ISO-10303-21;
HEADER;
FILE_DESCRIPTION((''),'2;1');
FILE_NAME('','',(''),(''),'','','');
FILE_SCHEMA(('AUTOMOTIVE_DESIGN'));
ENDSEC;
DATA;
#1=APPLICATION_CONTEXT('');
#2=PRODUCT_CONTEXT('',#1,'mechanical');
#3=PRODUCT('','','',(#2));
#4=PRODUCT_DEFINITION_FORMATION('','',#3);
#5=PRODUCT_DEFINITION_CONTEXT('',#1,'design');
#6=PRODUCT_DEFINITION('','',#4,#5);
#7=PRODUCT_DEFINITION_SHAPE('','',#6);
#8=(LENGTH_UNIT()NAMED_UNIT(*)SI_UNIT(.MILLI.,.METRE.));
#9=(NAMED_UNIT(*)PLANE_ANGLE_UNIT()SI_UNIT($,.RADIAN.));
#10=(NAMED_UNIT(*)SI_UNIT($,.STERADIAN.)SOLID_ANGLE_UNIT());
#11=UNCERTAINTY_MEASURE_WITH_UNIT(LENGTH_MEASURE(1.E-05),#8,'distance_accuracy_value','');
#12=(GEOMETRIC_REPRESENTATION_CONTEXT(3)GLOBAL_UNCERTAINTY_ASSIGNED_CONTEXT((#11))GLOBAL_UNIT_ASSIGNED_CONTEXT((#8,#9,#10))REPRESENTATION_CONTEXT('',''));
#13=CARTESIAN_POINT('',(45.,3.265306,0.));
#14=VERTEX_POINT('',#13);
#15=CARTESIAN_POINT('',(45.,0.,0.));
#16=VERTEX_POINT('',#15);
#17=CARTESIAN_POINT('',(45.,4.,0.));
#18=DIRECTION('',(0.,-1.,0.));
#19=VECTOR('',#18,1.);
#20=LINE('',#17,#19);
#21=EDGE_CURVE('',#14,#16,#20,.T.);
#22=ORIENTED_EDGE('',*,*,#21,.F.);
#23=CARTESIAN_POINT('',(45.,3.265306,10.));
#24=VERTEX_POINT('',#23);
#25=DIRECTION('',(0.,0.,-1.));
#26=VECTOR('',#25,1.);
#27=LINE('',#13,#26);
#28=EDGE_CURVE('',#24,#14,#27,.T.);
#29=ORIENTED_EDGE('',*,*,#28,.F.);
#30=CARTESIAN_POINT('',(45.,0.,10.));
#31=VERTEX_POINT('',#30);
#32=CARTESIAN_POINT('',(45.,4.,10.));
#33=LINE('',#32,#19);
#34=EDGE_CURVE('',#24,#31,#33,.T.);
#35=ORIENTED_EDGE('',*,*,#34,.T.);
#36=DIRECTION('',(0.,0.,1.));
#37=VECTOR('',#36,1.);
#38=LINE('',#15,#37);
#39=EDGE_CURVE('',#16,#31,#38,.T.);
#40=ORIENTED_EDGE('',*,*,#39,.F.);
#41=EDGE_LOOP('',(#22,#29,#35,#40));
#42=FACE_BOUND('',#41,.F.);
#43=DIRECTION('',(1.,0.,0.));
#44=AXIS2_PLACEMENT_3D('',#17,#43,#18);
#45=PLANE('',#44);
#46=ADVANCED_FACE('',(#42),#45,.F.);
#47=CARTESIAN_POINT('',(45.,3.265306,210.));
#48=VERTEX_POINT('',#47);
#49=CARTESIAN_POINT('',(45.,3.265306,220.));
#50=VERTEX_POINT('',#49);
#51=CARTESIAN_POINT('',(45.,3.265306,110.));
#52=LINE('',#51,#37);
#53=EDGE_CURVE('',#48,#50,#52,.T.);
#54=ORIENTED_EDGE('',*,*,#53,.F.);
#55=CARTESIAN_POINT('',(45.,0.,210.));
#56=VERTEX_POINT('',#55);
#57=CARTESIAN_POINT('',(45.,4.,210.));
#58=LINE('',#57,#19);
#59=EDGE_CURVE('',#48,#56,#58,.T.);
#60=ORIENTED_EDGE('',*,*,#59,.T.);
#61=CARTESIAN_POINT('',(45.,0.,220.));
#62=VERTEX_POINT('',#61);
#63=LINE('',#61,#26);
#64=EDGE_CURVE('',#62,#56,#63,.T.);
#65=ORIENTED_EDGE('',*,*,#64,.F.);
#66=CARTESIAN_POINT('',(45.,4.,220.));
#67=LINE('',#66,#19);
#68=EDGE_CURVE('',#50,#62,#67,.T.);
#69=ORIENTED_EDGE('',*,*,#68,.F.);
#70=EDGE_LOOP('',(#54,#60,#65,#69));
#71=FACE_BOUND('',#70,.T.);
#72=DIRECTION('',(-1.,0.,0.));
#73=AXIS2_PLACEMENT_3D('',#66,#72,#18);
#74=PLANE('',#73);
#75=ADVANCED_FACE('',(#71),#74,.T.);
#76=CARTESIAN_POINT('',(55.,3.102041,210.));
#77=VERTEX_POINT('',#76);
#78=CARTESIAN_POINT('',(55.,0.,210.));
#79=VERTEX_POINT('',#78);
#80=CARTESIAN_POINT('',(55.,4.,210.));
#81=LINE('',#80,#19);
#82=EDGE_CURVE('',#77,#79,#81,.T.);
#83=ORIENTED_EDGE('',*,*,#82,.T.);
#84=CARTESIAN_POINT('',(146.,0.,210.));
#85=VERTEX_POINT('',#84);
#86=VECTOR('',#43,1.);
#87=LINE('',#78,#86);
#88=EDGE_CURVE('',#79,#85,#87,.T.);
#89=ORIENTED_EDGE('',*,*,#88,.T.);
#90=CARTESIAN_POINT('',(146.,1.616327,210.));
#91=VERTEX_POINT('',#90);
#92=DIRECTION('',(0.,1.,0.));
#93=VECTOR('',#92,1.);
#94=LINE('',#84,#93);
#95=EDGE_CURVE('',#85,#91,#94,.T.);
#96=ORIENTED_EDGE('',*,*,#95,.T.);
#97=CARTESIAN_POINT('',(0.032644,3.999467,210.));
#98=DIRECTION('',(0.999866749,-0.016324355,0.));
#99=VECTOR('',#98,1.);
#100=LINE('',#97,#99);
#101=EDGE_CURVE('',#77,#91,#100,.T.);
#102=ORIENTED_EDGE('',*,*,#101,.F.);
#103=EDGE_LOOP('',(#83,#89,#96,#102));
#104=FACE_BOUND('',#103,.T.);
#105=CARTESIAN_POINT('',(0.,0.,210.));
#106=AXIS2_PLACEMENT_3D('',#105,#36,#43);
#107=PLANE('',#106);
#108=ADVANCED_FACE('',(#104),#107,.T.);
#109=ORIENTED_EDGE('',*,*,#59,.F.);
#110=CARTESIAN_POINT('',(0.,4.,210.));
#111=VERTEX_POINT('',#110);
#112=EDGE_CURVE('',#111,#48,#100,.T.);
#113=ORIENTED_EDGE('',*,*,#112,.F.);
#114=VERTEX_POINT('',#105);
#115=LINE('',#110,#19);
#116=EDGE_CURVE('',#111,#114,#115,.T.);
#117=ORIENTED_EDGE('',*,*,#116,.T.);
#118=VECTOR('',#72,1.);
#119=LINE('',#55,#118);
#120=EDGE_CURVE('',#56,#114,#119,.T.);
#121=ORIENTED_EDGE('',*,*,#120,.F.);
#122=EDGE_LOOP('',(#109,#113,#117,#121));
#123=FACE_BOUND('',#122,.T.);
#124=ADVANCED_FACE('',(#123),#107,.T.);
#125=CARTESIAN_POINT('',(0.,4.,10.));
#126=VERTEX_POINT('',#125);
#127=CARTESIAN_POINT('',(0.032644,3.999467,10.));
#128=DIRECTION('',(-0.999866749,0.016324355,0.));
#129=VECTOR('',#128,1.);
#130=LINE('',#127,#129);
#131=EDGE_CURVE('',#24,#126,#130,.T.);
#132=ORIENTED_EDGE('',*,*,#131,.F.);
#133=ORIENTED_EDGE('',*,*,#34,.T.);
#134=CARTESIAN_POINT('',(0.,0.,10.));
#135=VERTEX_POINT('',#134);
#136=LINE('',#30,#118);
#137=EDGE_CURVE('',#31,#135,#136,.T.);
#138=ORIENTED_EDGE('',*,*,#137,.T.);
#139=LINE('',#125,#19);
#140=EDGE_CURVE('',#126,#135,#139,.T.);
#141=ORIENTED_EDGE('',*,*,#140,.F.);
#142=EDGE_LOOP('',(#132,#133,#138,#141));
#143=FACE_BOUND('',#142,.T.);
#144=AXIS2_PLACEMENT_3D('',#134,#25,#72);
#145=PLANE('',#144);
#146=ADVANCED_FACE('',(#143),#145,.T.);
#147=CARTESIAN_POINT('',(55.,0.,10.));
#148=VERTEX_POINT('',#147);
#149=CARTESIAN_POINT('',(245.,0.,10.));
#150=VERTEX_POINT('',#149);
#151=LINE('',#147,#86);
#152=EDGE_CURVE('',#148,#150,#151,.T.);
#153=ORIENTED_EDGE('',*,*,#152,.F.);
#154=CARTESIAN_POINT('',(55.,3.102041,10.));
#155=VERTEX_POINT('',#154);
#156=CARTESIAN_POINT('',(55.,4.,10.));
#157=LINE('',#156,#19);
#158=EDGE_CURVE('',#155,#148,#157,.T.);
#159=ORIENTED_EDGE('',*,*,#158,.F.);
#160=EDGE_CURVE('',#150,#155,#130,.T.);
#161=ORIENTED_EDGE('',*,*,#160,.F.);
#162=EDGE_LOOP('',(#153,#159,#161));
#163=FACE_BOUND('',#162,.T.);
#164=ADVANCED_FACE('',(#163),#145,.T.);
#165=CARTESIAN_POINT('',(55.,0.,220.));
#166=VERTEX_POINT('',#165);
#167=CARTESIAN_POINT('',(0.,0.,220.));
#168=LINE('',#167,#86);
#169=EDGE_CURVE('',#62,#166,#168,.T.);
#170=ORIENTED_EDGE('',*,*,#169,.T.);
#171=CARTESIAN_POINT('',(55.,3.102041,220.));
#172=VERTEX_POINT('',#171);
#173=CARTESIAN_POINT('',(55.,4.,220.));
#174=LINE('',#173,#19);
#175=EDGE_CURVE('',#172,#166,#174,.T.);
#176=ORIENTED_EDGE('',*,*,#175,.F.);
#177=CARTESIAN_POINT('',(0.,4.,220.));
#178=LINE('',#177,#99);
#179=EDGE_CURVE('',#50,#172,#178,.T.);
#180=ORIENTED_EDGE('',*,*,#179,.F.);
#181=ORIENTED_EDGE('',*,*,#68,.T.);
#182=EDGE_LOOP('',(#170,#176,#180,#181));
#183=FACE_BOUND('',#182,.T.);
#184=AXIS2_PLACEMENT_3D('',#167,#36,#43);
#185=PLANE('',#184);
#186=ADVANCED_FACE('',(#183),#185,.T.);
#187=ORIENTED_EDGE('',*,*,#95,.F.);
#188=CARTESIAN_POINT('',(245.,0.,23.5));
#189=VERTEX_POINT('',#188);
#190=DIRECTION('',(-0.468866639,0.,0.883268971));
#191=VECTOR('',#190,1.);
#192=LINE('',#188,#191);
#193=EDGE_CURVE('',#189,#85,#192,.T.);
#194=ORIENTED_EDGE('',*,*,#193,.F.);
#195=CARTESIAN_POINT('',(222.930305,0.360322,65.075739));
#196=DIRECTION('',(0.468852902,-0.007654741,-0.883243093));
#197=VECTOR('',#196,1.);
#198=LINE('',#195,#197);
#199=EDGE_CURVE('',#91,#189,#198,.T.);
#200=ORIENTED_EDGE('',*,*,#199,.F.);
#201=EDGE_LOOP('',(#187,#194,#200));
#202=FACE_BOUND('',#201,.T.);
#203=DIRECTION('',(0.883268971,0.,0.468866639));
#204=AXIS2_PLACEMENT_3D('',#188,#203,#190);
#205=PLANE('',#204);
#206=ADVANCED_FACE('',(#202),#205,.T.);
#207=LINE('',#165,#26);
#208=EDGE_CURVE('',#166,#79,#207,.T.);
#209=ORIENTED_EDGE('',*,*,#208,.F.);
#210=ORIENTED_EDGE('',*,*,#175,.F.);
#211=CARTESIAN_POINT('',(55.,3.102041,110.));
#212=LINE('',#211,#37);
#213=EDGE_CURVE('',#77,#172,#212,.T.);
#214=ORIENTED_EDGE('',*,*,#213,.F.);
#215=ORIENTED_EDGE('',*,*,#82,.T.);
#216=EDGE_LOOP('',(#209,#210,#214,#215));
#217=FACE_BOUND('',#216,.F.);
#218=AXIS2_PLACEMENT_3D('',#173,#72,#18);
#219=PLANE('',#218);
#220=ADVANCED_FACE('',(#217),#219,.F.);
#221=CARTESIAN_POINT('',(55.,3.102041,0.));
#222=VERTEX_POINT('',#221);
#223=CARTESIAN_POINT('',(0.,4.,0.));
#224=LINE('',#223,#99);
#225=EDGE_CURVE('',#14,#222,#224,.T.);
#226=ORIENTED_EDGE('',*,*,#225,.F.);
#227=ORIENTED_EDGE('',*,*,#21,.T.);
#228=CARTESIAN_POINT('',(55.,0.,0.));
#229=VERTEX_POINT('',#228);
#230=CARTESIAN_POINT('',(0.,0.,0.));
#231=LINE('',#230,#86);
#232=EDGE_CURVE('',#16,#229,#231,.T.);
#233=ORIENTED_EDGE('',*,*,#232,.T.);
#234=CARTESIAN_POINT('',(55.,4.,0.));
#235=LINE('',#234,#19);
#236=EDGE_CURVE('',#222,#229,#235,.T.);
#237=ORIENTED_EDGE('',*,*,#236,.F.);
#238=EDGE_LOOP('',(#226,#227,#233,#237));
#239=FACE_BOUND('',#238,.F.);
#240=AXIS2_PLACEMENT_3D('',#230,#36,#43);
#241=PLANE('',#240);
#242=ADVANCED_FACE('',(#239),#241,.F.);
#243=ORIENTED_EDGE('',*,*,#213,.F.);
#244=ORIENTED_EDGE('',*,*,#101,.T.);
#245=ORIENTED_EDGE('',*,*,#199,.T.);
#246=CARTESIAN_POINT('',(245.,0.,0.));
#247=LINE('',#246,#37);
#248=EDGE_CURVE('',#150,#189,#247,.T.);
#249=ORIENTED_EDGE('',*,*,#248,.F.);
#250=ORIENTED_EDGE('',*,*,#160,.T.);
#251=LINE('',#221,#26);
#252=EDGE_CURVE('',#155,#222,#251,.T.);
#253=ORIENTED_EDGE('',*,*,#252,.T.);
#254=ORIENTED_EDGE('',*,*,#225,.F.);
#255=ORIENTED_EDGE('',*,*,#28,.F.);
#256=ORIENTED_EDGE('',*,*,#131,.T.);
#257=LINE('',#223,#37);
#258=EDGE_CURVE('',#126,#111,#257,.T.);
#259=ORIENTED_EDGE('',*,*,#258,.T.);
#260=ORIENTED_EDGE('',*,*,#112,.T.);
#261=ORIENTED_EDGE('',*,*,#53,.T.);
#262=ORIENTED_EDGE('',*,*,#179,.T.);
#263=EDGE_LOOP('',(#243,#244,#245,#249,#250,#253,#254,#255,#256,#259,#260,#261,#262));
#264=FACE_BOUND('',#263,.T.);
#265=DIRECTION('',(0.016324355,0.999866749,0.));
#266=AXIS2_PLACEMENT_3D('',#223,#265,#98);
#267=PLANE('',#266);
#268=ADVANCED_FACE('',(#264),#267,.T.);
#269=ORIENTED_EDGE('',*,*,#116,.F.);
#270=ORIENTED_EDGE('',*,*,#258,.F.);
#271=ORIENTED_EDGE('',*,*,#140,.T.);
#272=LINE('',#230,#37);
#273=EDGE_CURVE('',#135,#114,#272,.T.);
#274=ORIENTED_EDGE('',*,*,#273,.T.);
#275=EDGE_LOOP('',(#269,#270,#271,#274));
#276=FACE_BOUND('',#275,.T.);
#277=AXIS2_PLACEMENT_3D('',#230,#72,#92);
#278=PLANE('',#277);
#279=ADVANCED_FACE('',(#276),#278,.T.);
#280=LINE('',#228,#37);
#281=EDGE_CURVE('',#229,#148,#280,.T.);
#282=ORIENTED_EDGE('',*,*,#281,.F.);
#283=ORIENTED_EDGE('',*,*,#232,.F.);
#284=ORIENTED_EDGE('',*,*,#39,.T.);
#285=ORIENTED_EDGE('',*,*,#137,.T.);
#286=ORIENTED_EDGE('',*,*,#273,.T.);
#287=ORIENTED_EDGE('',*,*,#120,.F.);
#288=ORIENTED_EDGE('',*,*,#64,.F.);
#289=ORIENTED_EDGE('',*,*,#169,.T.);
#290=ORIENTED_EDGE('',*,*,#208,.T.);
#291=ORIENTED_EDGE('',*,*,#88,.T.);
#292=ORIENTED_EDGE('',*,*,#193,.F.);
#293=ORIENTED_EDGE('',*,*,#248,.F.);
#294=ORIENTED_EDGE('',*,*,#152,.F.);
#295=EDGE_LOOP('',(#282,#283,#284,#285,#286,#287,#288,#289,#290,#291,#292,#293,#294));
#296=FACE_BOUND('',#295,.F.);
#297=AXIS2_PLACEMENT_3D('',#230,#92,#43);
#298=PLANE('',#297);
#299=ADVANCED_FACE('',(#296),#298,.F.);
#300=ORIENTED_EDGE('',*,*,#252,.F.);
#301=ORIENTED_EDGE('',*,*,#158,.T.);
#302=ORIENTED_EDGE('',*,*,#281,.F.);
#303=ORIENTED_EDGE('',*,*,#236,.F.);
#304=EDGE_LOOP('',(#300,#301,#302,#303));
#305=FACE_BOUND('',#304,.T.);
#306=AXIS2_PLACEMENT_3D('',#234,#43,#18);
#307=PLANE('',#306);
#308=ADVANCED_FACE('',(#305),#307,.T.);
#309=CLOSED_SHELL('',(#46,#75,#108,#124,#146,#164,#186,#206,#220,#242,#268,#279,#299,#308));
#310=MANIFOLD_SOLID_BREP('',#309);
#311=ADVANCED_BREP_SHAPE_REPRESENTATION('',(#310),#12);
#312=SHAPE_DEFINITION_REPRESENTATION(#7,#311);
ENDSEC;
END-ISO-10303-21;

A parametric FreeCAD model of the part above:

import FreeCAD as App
import Part
import Sketcher
from FreeCAD import Vector
Q = App.Units.Quantity


def add_polygon(sketch, points):
    """Adds a closed chain of lines whose ends are joined by coincident constraints."""
    first, n = sketch.GeometryCount, len(points)
    for a, b in zip(points, points[1:] + points[:1]):
        sketch.addGeometry(Part.LineSegment(App.Vector(*a, 0), App.Vector(*b, 0)), False)
    for i in range(n):
        sketch.addConstraint(Sketcher.Constraint("Coincident", first + i, 2, first + (i + 1) % n, 1))

doc = App.newDocument("Part")
body = doc.addObject("PartDesign::Body", "Body")

# Sketch on XY plane
sketch1 = body.newObject("Sketcher::SketchObject", "Sketch")
sketch1.AttachmentSupport = (doc.getObject("XY_Plane"), [""])
sketch1.MapMode = "FlatFace"
add_polygon(sketch1, [(0, 4), (0, 0), (245, 0)])  # lines 0-2
sketch1.addConstraint(Sketcher.Constraint("Vertical", 0))
sketch1.addConstraint(Sketcher.Constraint("Horizontal", 1))
sketch1.addConstraint(Sketcher.Constraint("Coincident", 0, 2, -1, 1))
sketch1.addConstraint(Sketcher.Constraint("DistanceX", 1, 1, 1, 2, Q("245 mm")))
sketch1.addConstraint(Sketcher.Constraint("DistanceY", 0, 2, 0, 1, Q("4 mm")))
pad1 = body.newObject("PartDesign::Pad", "Pad")
pad1.Profile = sketch1
pad1.Length = 220

# Sketch on XY plane
sketch2 = body.newObject("Sketcher::SketchObject", "Sketch001")
sketch2.AttachmentSupport = (doc.getObject("XY_Plane"), [""])
sketch2.MapMode = "FlatFace"
sketch2.AttachmentOffset = App.Placement(Vector(0, 0, 220), App.Rotation())
add_polygon(sketch2, [(45, 4), (0, 4), (0, 0), (45, 0)])  # lines 0-3
add_polygon(sketch2, [(55, 4), (55, 0), (245, 0), (245, 4)])  # lines 4-7
sketch2.addConstraint(Sketcher.Constraint("Horizontal", 0))
sketch2.addConstraint(Sketcher.Constraint("Vertical", 1))
sketch2.addConstraint(Sketcher.Constraint("Horizontal", 2))
sketch2.addConstraint(Sketcher.Constraint("Vertical", 3))
sketch2.addConstraint(Sketcher.Constraint("Vertical", 4))
sketch2.addConstraint(Sketcher.Constraint("Horizontal", 5))
sketch2.addConstraint(Sketcher.Constraint("Vertical", 6))
sketch2.addConstraint(Sketcher.Constraint("Horizontal", 7))
sketch2.addConstraint(Sketcher.Constraint("Coincident", 1, 2, -1, 1))
sketch2.addConstraint(Sketcher.Constraint("PointOnObject", 4, 2, -1))
sketch2.addConstraint(Sketcher.Constraint("Horizontal", 3, 2, 6, 2))
sketch2.addConstraint(Sketcher.Constraint("DistanceX", 0, 2, 0, 1, Q("45 mm")))
sketch2.addConstraint(Sketcher.Constraint("DistanceX", 5, 1, 5, 2, Q("190 mm")))
sketch2.addConstraint(Sketcher.Constraint("DistanceY", 1, 2, 1, 1, Q("4 mm")))
sketch2.addConstraint(Sketcher.Constraint("DistanceX", -1, 1, 4, 2, Q("55 mm")))
pocket1 = body.newObject("PartDesign::Pocket", "Pocket")
pocket1.Profile = sketch2
pocket1.Length = 10

# Sketch on XY plane
sketch3 = body.newObject("Sketcher::SketchObject", "Sketch002")
sketch3.AttachmentSupport = (doc.getObject("XY_Plane"), [""])
sketch3.MapMode = "FlatFace"
add_polygon(sketch3, [(245, 0), (55, 0), (55, 4), (245, 4)])  # lines 0-3
add_polygon(sketch3, [(0, 0), (0, 4), (45, 4), (45, 0)])  # lines 4-7
sketch3.addConstraint(Sketcher.Constraint("Horizontal", 0))
sketch3.addConstraint(Sketcher.Constraint("Vertical", 1))
sketch3.addConstraint(Sketcher.Constraint("Horizontal", 2))
sketch3.addConstraint(Sketcher.Constraint("Vertical", 3))
sketch3.addConstraint(Sketcher.Constraint("Vertical", 4))
sketch3.addConstraint(Sketcher.Constraint("Horizontal", 5))
sketch3.addConstraint(Sketcher.Constraint("Vertical", 6))
sketch3.addConstraint(Sketcher.Constraint("Horizontal", 7))
sketch3.addConstraint(Sketcher.Constraint("Coincident", 7, 2, -1, 1))
sketch3.addConstraint(Sketcher.Constraint("PointOnObject", 0, 2, -1))
sketch3.addConstraint(Sketcher.Constraint("Horizontal", 2, 2, 4, 2))
sketch3.addConstraint(Sketcher.Constraint("DistanceX", 0, 2, 0, 1, Q("190 mm")))
sketch3.addConstraint(Sketcher.Constraint("DistanceX", 5, 1, 5, 2, Q("45 mm")))
sketch3.addConstraint(Sketcher.Constraint("DistanceY", 1, 1, 1, 2, Q("4 mm")))
sketch3.addConstraint(Sketcher.Constraint("DistanceX", -1, 1, 0, 2, Q("55 mm")))
pocket2 = body.newObject("PartDesign::Pocket", "Pocket001")
pocket2.Profile = sketch3
pocket2.Length = 10
pocket2.Reversed = True

# Sketch on XZ plane
sketch4 = body.newObject("Sketcher::SketchObject", "Sketch003")
sketch4.AttachmentSupport = (doc.getObject("XZ_Plane"), [""])
sketch4.MapMode = "FlatFace"
add_polygon(sketch4, [(146, 210), (245, 24), (245, 210)])  # lines 0-2
sketch4.addConstraint(Sketcher.Constraint("Vertical", 1))
sketch4.addConstraint(Sketcher.Constraint("Horizontal", 2))
sketch4.addConstraint(Sketcher.Constraint("DistanceX", -1, 1, 2, 2, Q("146 mm")))
sketch4.addConstraint(Sketcher.Constraint("DistanceX", 2, 2, 2, 1, Q("99 mm")))
sketch4.addConstraint(Sketcher.Constraint("DistanceY", 1, 1, 1, 2, Q("186.5 mm")))
sketch4.addConstraint(Sketcher.Constraint("DistanceY", -1, 1, 1, 2, Q("210 mm")))
pocket3 = body.newObject("PartDesign::Pocket", "Pocket002")
pocket3.Profile = sketch4
pocket3.Length = 10

doc.recompute()
